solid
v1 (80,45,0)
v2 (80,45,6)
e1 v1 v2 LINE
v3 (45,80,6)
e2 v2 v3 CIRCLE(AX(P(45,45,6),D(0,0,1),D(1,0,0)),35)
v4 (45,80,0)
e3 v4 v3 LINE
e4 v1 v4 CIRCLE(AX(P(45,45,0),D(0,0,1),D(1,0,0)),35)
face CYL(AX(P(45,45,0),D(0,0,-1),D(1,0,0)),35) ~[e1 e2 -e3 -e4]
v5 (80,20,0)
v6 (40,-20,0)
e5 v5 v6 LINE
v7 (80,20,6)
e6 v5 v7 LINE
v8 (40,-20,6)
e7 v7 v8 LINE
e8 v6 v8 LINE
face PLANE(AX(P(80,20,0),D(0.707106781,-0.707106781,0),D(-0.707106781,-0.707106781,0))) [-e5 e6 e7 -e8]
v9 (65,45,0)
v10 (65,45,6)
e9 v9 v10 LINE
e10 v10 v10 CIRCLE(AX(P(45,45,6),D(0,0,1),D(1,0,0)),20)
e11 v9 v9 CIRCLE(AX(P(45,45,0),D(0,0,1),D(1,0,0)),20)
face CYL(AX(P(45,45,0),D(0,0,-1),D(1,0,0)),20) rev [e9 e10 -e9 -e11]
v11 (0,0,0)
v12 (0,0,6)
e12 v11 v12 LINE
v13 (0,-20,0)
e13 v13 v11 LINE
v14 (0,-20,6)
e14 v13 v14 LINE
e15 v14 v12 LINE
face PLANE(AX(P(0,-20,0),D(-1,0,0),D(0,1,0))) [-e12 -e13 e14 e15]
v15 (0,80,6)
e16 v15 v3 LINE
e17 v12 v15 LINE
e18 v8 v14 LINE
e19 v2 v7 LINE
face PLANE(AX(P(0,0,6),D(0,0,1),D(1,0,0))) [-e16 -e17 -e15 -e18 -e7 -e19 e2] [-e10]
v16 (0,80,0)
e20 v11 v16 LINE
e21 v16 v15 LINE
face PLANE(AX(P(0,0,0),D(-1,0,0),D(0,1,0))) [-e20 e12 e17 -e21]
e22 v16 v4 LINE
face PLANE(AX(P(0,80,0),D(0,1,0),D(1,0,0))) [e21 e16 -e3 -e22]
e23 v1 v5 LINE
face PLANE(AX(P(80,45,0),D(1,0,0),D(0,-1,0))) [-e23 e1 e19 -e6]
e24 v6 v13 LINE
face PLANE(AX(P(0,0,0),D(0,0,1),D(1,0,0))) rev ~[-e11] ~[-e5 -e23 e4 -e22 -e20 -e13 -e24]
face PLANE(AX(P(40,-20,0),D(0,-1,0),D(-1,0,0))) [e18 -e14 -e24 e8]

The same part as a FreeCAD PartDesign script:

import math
import FreeCAD as App
import Part
import Sketcher
Q = App.Units.Quantity

doc = App.newDocument("Part")
body = doc.addObject("PartDesign::Body", "Body")

# Sketch on XY plane
sketch1 = body.newObject("Sketcher::SketchObject", "Sketch")
sketch1.AttachmentSupport = (doc.getObject("XY_Plane"), [""])
sketch1.MapMode = "FlatFace"
sketch1.addGeometry([
    Part.LineSegment(App.Vector(0, 80, 0), App.Vector(0, -20, 0)),  # 0
    Part.LineSegment(App.Vector(0, -20, 0), App.Vector(40, -20, 0)),  # 1
    Part.LineSegment(App.Vector(40, -20, 0), App.Vector(80, 20, 0)),  # 2
    Part.LineSegment(App.Vector(80, 20, 0), App.Vector(80, 45, 0)),  # 3
    Part.ArcOfCircle(Part.Circle(App.Vector(45, 45, 0), App.Vector(0, 0, 1), 35), math.radians(0), math.radians(90)),  # 4
    Part.LineSegment(App.Vector(45, 80, 0), App.Vector(0, 80, 0)),  # 5
    Part.Circle(App.Vector(45, 45, 0), App.Vector(0, 0, 1), 20),  # 6
], False)
sketch1.addConstraint([
    Sketcher.Constraint("Coincident", 0, 2, 1, 1),
    Sketcher.Constraint("Coincident", 1, 2, 2, 1),
    Sketcher.Constraint("Coincident", 2, 2, 3, 1),
    Sketcher.Constraint("Tangent", 3, 2, 4, 1),
    Sketcher.Constraint("Tangent", 4, 2, 5, 1),
    Sketcher.Constraint("Coincident", 5, 2, 0, 1),
    Sketcher.Constraint("Vertical", 0),
    Sketcher.Constraint("Horizontal", 1),
    Sketcher.Constraint("Vertical", 3),
    Sketcher.Constraint("Horizontal", 5),
    Sketcher.Constraint("Coincident", 6, 3, 4, 3),
    Sketcher.Constraint("PointOnObject", 0, 2, -2),
    Sketcher.Constraint("Diameter", 6, 40.0),
    Sketcher.Constraint("Radius", 4, 35.0),
    Sketcher.Constraint("DistanceX", 1, 1, 1, 2, 40.0),
    Sketcher.Constraint("DistanceX", 5, 2, 5, 1, 45.0),
    Sketcher.Constraint("Angle", 2, Q("45 deg")),
    Sketcher.Constraint("DistanceY", -1, 1, 4, 3, 45.0),
    Sketcher.Constraint("DistanceY", 0, 2, -1, 1, 20.0),
])
pad1 = body.newObject("PartDesign::Pad", "Pad")
pad1.Profile = sketch1
pad1.Length = 6

doc.recompute()
